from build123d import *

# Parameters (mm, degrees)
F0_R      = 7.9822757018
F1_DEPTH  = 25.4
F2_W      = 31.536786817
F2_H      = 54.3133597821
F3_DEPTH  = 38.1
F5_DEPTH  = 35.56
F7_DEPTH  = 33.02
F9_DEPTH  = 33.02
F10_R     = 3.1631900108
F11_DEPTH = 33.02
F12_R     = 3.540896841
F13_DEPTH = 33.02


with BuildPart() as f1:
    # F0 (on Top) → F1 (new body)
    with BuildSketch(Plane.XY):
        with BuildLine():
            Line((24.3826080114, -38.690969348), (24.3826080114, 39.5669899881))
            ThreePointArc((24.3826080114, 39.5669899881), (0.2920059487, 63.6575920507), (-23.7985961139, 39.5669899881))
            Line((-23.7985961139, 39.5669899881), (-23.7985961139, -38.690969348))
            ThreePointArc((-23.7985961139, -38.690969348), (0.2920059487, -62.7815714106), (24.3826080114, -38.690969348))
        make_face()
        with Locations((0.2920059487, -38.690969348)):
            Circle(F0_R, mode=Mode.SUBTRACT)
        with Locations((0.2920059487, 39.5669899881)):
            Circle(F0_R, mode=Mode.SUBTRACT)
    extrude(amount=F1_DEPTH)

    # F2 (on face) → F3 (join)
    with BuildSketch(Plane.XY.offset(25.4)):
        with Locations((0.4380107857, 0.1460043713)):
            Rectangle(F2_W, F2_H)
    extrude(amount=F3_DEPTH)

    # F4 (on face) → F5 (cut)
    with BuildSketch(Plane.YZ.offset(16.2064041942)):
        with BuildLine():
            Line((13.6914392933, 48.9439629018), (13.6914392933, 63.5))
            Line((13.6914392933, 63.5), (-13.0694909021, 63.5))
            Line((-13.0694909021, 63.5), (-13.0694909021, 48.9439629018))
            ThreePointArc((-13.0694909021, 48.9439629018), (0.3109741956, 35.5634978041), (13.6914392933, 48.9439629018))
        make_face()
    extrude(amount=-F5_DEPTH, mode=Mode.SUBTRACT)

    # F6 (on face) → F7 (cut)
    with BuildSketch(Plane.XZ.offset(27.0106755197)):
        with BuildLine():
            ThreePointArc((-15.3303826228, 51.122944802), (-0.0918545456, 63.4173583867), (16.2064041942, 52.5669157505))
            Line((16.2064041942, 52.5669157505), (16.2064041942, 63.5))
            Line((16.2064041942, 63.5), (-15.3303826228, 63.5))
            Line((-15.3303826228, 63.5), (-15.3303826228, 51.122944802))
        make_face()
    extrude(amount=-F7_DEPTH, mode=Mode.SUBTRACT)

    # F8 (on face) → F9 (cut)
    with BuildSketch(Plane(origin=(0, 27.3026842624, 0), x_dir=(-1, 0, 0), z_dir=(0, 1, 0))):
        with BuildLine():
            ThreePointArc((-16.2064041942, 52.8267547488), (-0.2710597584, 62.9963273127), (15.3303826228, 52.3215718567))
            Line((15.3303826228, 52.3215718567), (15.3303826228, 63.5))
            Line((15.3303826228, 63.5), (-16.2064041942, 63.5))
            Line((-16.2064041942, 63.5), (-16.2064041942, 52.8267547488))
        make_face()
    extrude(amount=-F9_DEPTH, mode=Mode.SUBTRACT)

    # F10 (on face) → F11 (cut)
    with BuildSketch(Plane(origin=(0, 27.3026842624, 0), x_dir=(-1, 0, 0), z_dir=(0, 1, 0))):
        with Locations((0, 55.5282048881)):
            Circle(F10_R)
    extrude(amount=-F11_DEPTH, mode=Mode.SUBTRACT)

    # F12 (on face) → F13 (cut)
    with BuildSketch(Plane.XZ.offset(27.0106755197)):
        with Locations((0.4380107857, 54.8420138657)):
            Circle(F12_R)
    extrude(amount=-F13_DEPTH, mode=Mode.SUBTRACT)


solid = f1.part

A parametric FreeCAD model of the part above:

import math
import FreeCAD as App
import Part
import Sketcher

V = App.Vector
Q = App.Units.Quantity


def add_polygon(sketch, points):
    """Adds a closed chain of lines whose ends are joined by coincident constraints."""
    first, n = sketch.GeometryCount, len(points)
    for a, b in zip(points, points[1:] + points[:1]):
        sketch.addGeometry(Part.LineSegment(App.Vector(*a, 0), App.Vector(*b, 0)), False)
    for i in range(n):
        sketch.addConstraint(Sketcher.Constraint("Coincident", first + i, 2, first + (i + 1) % n, 1))

doc = App.newDocument("Part")
body = doc.addObject("PartDesign::Body", "Body")

# Sketch on XY plane
sketch1 = doc.addObject("Sketcher::SketchObject", "Sketch")
body.addObject(sketch1)
sketch1.AttachmentSupport = (doc.XY_Plane, [""])
sketch1.MapMode = "FlatFace"
sketch1.addGeometry([
    Part.LineSegment(V(24.382608, -38.690969, 0), V(24.382608, 39.56699, 0)),  # 0
    Part.ArcOfCircle(Part.Circle(V(0.292006, 39.56699, 0), V(0, 0, 1), 24.090602), math.radians(0), math.radians(180)),  # 1
    Part.LineSegment(V(-23.798596, 39.56699, 0), V(-23.798596, -38.690969, 0)),  # 2
    Part.ArcOfCircle(Part.Circle(V(0.292006, -38.690969, 0), V(0, 0, 1), 24.090602), math.radians(180), math.radians(360)),  # 3
    Part.Circle(V(0.292006, -38.690969, 0), V(0, 0, 1), 7.982276),  # 4
    Part.Circle(V(0.292006, 39.56699, 0), V(0, 0, 1), 7.982276),  # 5
], False)
sketch1.addConstraint([
    Sketcher.Constraint("Tangent", 0, 2, 1, 1),
    Sketcher.Constraint("Tangent", 1, 2, 2, 1),
    Sketcher.Constraint("Tangent", 2, 2, 3, 1),
    Sketcher.Constraint("Tangent", 3, 2, 0, 1),
    Sketcher.Constraint("Vertical", 0),
    Sketcher.Constraint("Vertical", 2),
    Sketcher.Constraint("Coincident", 4, 3, 3, 3),
    Sketcher.Constraint("Coincident", 5, 3, 1, 3),
    Sketcher.Constraint("Equal", 4, 5),
    Sketcher.Constraint("Diameter", 4, 15.964551),
    Sketcher.Constraint("Radius", 1, 24.090602),
    Sketcher.Constraint("DistanceY", 0, 1, 0, 2, 78.257959),
    Sketcher.Constraint("DistanceY", -1, 1, 1, 3, 39.56699),
    Sketcher.Constraint("DistanceX", -1, 1, 0, 2, 24.382608),
])
pad1 = doc.addObject("PartDesign::Pad", "Pad")
body.addObject(pad1)
pad1.Profile = sketch1
pad1.Length = Q("1 in")

# Sketch on XY plane
sketch2 = doc.addObject("Sketcher::SketchObject", "Sketch001")
body.addObject(sketch2)
sketch2.AttachmentSupport = (doc.XY_Plane, [""])
sketch2.MapMode = "FlatFace"
sketch2.AttachmentOffset = App.Placement(V(0, 0, 1 * 25.4), App.Rotation())
add_polygon(sketch2, [(-15.330383, 27.302684), (-15.330383, -27.010676), (16.206404, -27.010676), (16.206404, 27.302684)])  # lines 0-3
sketch2.addConstraint([
    Sketcher.Constraint("Vertical", 0),
    Sketcher.Constraint("Horizontal", 1),
    Sketcher.Constraint("Vertical", 2),
    Sketcher.Constraint("Horizontal", 3),
    Sketcher.Constraint("DistanceY", 0, 2, 0, 1, 54.31336),
    Sketcher.Constraint("DistanceX", 1, 1, 1, 2, 31.536787),
    Sketcher.Constraint("DistanceX", 0, 2, -1, 1, 15.330383),
    Sketcher.Constraint("DistanceY", 0, 2, -1, 1, 27.010676),
])
pad2 = doc.addObject("PartDesign::Pad", "Pad001")
body.addObject(pad2)
pad2.Profile = sketch2
pad2.Length = Q("1.5 in")

# Sketch on YZ plane
sketch3 = doc.addObject("Sketcher::SketchObject", "Sketch002")
body.addObject(sketch3)
sketch3.AttachmentSupport = (doc.YZ_Plane, [""])
sketch3.MapMode = "FlatFace"
sketch3.AttachmentOffset = App.Placement(V(0, 0, 16.206404), App.Rotation())
sketch3.addGeometry([
    Part.LineSegment(V(13.691439, 48.943963, 0), V(13.691439, 63.5, 0)),
    Part.LineSegment(V(13.691439, 63.5, 0), V(-13.069491, 63.5, 0)),
    Part.LineSegment(V(-13.069491, 63.5, 0), V(-13.069491, 48.943963, 0)),
    Part.ArcOfCircle(Part.Circle(V(0.310974, 48.943963, 0), V(0, 0, 1), 13.380465), math.radians(180), math.radians(360)),
], False)
sketch3.addConstraint([
    Sketcher.Constraint("Coincident", 0, 2, 1, 1),
    Sketcher.Constraint("Coincident", 1, 2, 2, 1),
    Sketcher.Constraint("Tangent", 2, 2, 3, 1),
    Sketcher.Constraint("Tangent", 3, 2, 0, 1),
    Sketcher.Constraint("Vertical", 0),
    Sketcher.Constraint("Horizontal", 1),
    Sketcher.Constraint("Vertical", 2),
    Sketcher.Constraint("DistanceY", -1, 1, 0, 2, Q("2.5 in")),
    Sketcher.Constraint("Radius", 3, 13.380465),
    Sketcher.Constraint("DistanceY", 0, 1, 0, 2, 14.556037),
    Sketcher.Constraint("DistanceX", -1, 1, 0, 2, 13.691439),
])
pocket1 = doc.addObject("PartDesign::Pocket", "Pocket")
body.addObject(pocket1)
pocket1.Profile = sketch3
pocket1.Length = Q("1.4 in")

# Sketch on XZ plane
sketch4 = doc.addObject("Sketcher::SketchObject", "Sketch003")
body.addObject(sketch4)
sketch4.AttachmentSupport = (doc.XZ_Plane, [""])
sketch4.MapMode = "FlatFace"
sketch4.AttachmentOffset = App.Placement(V(0, 0, 27.010676), App.Rotation())
sketch4.addGeometry([
    Part.ArcOfCircle(Part.Circle(V(0.664961, 46.888272, 0), V(0, 0, 1), 16.546403), math.radians(20.071653), math.radians(165.171474)),
    Part.LineSegment(V(16.206404, 52.566916, 0), V(16.206404, 63.5, 0)),
    Part.LineSegment(V(16.206404, 63.5, 0), V(-15.330383, 63.5, 0)),
    Part.LineSegment(V(-15.330383, 63.5, 0), V(-15.330383, 51.122945, 0)),
], False)
sketch4.addConstraint([
    Sketcher.Constraint("Coincident", 0, 1, 1, 1),
    Sketcher.Constraint("Coincident", 1, 2, 2, 1),
    Sketcher.Constraint("Coincident", 2, 2, 3, 1),
    Sketcher.Constraint("Coincident", 3, 2, 0, 2),
    Sketcher.Constraint("Vertical", 1),
    Sketcher.Constraint("Horizontal", 2),
    Sketcher.Constraint("Vertical", 3),
    Sketcher.Constraint("DistanceY", -1, 1, 1, 2, Q("2.5 in")),
    Sketcher.Constraint("Radius", 0, 16.546403),
    Sketcher.Constraint("DistanceX", 2, 2, 2, 1, 31.536787),
    Sketcher.Constraint("DistanceY", 1, 1, 1, 2, 10.933084),
    Sketcher.Constraint("DistanceY", 3, 2, 3, 1, 12.377055),
    Sketcher.Constraint("DistanceX", -1, 1, 0, 3, 0.664961),
])
pocket2 = doc.addObject("PartDesign::Pocket", "Pocket001")
body.addObject(pocket2)
pocket2.Profile = sketch4
pocket2.Length = Q("1.3 in")

# Sketch on XZ plane
sketch5 = doc.addObject("Sketcher::SketchObject", "Sketch004")
body.addObject(sketch5)
sketch5.AttachmentSupport = (doc.XZ_Plane, [""])
sketch5.MapMode = "FlatFace"
sketch5.AttachmentOffset = App.Placement(V(0, 0, -27.302684), App.Rotation())
sketch5.addGeometry([
    Part.ArcOfCircle(Part.Circle(V(0.545617, 45.856713, 0), V(0, 0, 1), 17.141813), math.radians(23.99209), math.radians(157.843378)),
    Part.LineSegment(V(-15.330383, 52.321572, 0), V(-15.330383, 63.5, 0)),
    Part.LineSegment(V(-15.330383, 63.5, 0), V(16.206404, 63.5, 0)),
    Part.LineSegment(V(16.206404, 63.5, 0), V(16.206404, 52.826755, 0)),
], False)
sketch5.addConstraint([
    Sketcher.Constraint("Coincident", 0, 2, 1, 1),
    Sketcher.Constraint("Coincident", 1, 2, 2, 1),
    Sketcher.Constraint("Coincident", 2, 2, 3, 1),
    Sketcher.Constraint("Coincident", 3, 2, 0, 1),
    Sketcher.Constraint("Vertical", 1),
    Sketcher.Constraint("Horizontal", 2),
    Sketcher.Constraint("Vertical", 3),
    Sketcher.Constraint("DistanceY", -1, 1, 1, 2, Q("2.5 in")),
    Sketcher.Constraint("Radius", 0, 17.141813),
    Sketcher.Constraint("DistanceY", 1, 1, 1, 2, 11.178428),
    Sketcher.Constraint("DistanceX", 0, 2, 0, 3, 15.875999),
    Sketcher.Constraint("DistanceX", 2, 1, 2, 2, 31.536787),
    Sketcher.Constraint("DistanceX", -1, 1, 0, 3, 0.545617),
])
pocket3 = doc.addObject("PartDesign::Pocket", "Pocket002")
body.addObject(pocket3)
pocket3.Profile = sketch5
pocket3.Length = Q("1.3 in")
pocket3.Reversed = True

# Sketch on XZ plane
sketch6 = doc.addObject("Sketcher::SketchObject", "Sketch005")
body.addObject(sketch6)
sketch6.AttachmentSupport = (doc.XZ_Plane, [""])
sketch6.MapMode = "FlatFace"
sketch6.AttachmentOffset = App.Placement(V(0, 0, -27.302684), App.Rotation())
sketch6.addGeometry(Part.Circle(V(0, 55.528205, 0), V(0, 0, 1), 3.16319), False)
sketch6.addConstraint([
    Sketcher.Constraint("PointOnObject", 0, 3, -2),
    Sketcher.Constraint("Diameter", 0, 6.32638),
    Sketcher.Constraint("DistanceY", -1, 1, 0, 3, 55.528205),
])
pocket4 = doc.addObject("PartDesign::Pocket", "Pocket003")
body.addObject(pocket4)
pocket4.Profile = sketch6
pocket4.Length = Q("1.3 in")
pocket4.Reversed = True

# Sketch on XZ plane
sketch7 = doc.addObject("Sketcher::SketchObject", "Sketch006")
body.addObject(sketch7)
sketch7.AttachmentSupport = (doc.XZ_Plane, [""])
sketch7.MapMode = "FlatFace"
sketch7.AttachmentOffset = App.Placement(V(0, 0, 27.010676), App.Rotation())
sketch7.addGeometry(Part.Circle(V(0.438011, 54.842014, 0), V(0, 0, 1), 3.540897), False)
sketch7.addConstraint([
    Sketcher.Constraint("Diameter", 0, 7.081794),
    Sketcher.Constraint("DistanceX", -1, 1, 0, 3, 0.438011),
    Sketcher.Constraint("DistanceY", -1, 1, 0, 3, 54.842014),
])
pocket5 = doc.addObject("PartDesign::Pocket", "Pocket004")
body.addObject(pocket5)
pocket5.Profile = sketch7
pocket5.Length = Q("1.3 in")

doc.recompute()
